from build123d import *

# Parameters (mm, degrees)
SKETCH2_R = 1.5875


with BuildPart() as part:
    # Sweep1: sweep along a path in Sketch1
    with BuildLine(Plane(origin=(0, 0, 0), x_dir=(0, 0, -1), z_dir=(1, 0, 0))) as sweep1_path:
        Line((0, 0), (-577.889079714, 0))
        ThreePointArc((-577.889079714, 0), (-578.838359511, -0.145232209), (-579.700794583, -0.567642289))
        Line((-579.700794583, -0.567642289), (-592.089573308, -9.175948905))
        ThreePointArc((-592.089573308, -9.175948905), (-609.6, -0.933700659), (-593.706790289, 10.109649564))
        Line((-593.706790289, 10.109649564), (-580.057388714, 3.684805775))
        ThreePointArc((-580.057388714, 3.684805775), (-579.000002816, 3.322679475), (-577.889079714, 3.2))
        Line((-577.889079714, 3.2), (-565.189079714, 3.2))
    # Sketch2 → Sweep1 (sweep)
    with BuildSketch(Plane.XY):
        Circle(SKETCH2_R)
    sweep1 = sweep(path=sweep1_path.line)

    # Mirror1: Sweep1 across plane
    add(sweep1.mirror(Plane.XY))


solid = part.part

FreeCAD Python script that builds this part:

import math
import FreeCAD as App
import Part
import Sketcher
Q = App.Units.Quantity

doc = App.newDocument("Part")
params = doc.addObject("Spreadsheet::Sheet", "Params")
for row, (alias, value) in enumerate([
    ("sketch1_diameter", "0.125 in"),
    ("sketch2_height", "0.5 in"),
    ("sketch2_radius", "0.125 in"),
], start=1):
    params.set(f"A{row}", alias)
    params.set(f"B{row}", "=" + value)
    params.setAlias(f"B{row}", alias)

body = doc.addObject("PartDesign::Body", "Body")

# Sketch on XY plane
sketch1 = body.newObject("Sketcher::SketchObject", "Sketch")
sketch1.AttachmentSupport = (doc.getObject("XY_Plane"), [""])
sketch1.MapMode = "FlatFace"
sketch1.addGeometry(Part.Circle(App.Vector(0, 0, 0), App.Vector(0, 0, 1), 1.6), False)
sketch1.addConstraint(Sketcher.Constraint("Coincident", 0, 3, -1, 1))
sketch1.addConstraint(Sketcher.Constraint("Diameter", 0, Q("0.125 in")))
sketch1.setExpression("Constraints[1]", "Params.sketch1_diameter")

# Sketch on YZ plane
sketch2 = body.newObject("Sketcher::SketchObject", "Sketch001")
sketch2.AttachmentSupport = (doc.getObject("YZ_Plane"), [""])
sketch2.MapMode = "FlatFace"
sketch2.addGeometry(Part.LineSegment(App.Vector(0, 0, 0), App.Vector(0, 577.9, 0)), False)
sketch2.addGeometry(Part.ArcOfCircle(Part.Circle(App.Vector(-3.2, 577.9, 0), App.Vector(0, 0, 1), 3.2), math.radians(0), math.radians(35)), False)
sketch2.addGeometry(Part.LineSegment(App.Vector(-0.6, 579.7, 0), App.Vector(-9.2, 592.1, 0)), False)
sketch2.addGeometry(Part.ArcOfCircle(Part.Circle(App.Vector(0, 598.5, 0), App.Vector(0, 0, 1), 11.2), math.radians(-25), math.radians(215)), False)
sketch2.addGeometry(Part.LineSegment(App.Vector(10.1, 593.7, 0), App.Vector(3.7, 580.1, 0)), False)
sketch2.addGeometry(Part.ArcOfCircle(Part.Circle(App.Vector(8.3, 577.9, 0), App.Vector(0, 0, 1), 5.1), math.radians(155), math.radians(180)), False)
sketch2.addGeometry(Part.LineSegment(App.Vector(3.2, 577.9, 0), App.Vector(3.2, 565.2, 0)), False)
sketch2.addConstraint(Sketcher.Constraint("Tangent", 0, 2, 1, 1))
sketch2.addConstraint(Sketcher.Constraint("Tangent", 1, 2, 2, 1))
sketch2.addConstraint(Sketcher.Constraint("Tangent", 2, 2, 3, 2))
sketch2.addConstraint(Sketcher.Constraint("Tangent", 3, 1, 4, 1))
sketch2.addConstraint(Sketcher.Constraint("Tangent", 4, 2, 5, 1))
sketch2.addConstraint(Sketcher.Constraint("Tangent", 5, 2, 6, 1))
sketch2.addConstraint(Sketcher.Constraint("Vertical", 0))
sketch2.addConstraint(Sketcher.Constraint("Vertical", 6))
sketch2.addConstraint(Sketcher.Constraint("Coincident", 0, 1, -1, 1))
sketch2.addConstraint(Sketcher.Constraint("PointOnObject", 3, 3, -2))
sketch2.addConstraint(Sketcher.Constraint("Horizontal", 1, 3, 5, 3))
sketch2.addConstraint(Sketcher.Constraint("Equal", 2, 4))
sketch2.addConstraint(Sketcher.Constraint("DistanceY", 6, 2, 6, 1, Q("0.5 in")))
sketch2.addConstraint(Sketcher.Constraint("Radius", 1, Q("0.125 in")))
sketch2.addConstraint(Sketcher.Constraint("Radius", 3, 11.173625))
sketch2.addConstraint(Sketcher.Constraint("Radius", 5, 5.091318))
sketch2.addConstraint(Sketcher.Constraint("DistanceY", 0, 1, 0, 2, 577.88908))
sketch2.addConstraint(Sketcher.Constraint("DistanceX", 2, 2, 3, 1, 19.285598))
sketch2.setExpression("Constraints[12]", "Params.sketch2_height")
sketch2.setExpression("Constraints[13]", "Params.sketch2_radius")
doc.recompute()

additivepipe = body.newObject("PartDesign::AdditivePipe", "AdditivePipe")
additivepipe.Profile = sketch1
additivepipe.Spine = (sketch2, ["Edge1", "Edge2", "Edge3", "Edge4", "Edge5", "Edge6", "Edge7"])
doc.recompute()

mirrored = body.newObject("PartDesign::Mirrored", "Mirrored")
mirrored.Originals = [additivepipe]
mirrored.MirrorPlane = (doc.getObject("XY_Plane"), [""])
body.Tip = mirrored

doc.recompute()
